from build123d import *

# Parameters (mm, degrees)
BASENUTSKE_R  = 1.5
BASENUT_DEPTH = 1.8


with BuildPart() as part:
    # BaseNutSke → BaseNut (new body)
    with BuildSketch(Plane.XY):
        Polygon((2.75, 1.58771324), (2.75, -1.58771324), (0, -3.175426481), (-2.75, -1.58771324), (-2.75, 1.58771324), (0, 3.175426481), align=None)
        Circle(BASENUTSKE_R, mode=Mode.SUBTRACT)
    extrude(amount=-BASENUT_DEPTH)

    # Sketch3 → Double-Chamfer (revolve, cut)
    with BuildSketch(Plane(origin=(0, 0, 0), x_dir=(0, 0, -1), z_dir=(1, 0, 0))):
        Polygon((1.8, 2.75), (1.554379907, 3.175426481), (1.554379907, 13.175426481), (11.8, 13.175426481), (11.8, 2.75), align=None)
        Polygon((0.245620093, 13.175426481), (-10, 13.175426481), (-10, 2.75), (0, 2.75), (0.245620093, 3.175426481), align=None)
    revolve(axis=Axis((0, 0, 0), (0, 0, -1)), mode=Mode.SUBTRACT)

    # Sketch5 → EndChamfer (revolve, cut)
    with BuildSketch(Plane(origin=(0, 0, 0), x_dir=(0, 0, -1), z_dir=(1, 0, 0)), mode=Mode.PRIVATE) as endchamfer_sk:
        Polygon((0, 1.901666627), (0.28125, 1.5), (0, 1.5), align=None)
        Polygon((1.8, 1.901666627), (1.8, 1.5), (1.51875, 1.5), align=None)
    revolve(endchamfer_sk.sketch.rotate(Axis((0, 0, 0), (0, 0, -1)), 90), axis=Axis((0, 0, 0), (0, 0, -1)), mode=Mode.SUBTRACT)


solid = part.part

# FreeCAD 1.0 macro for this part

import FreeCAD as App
import Part
import Sketcher
Q = App.Units.Quantity

doc = App.newDocument("Part")
body = doc.addObject("PartDesign::Body", "Body")

# Sketch on XY plane
sketch1 = body.newObject("Sketcher::SketchObject", "Sketch")
sketch1.AttachmentSupport = (doc.getObject("XY_Plane"), [""])
sketch1.MapMode = "FlatFace"
sketch1.addGeometry(Part.LineSegment(App.Vector(2.75, -1.587713, 0), App.Vector(2.75, 1.587713, 0)), False)
sketch1.addGeometry(Part.LineSegment(App.Vector(2.75, 1.587713, 0), App.Vector(0, 3.175426, 0)), False)
sketch1.addGeometry(Part.LineSegment(App.Vector(0, 3.175426, 0), App.Vector(-2.75, 1.587713, 0)), False)
sketch1.addGeometry(Part.LineSegment(App.Vector(-2.75, 1.587713, 0), App.Vector(-2.75, -1.587713, 0)), False)
sketch1.addGeometry(Part.LineSegment(App.Vector(-2.75, -1.587713, 0), App.Vector(0, -3.175426, 0)), False)
sketch1.addGeometry(Part.LineSegment(App.Vector(0, -3.175426, 0), App.Vector(2.75, -1.587713, 0)), False)
sketch1.addGeometry(Part.Circle(App.Vector(0, 0, 0), App.Vector(0, 0, 1), 1.5), False)
sketch1.addConstraint(Sketcher.Constraint("Coincident", 0, 2, 1, 1))
sketch1.addConstraint(Sketcher.Constraint("Coincident", 1, 2, 2, 1))
sketch1.addConstraint(Sketcher.Constraint("Coincident", 2, 2, 3, 1))
sketch1.addConstraint(Sketcher.Constraint("Coincident", 3, 2, 4, 1))
sketch1.addConstraint(Sketcher.Constraint("Coincident", 4, 2, 5, 1))
sketch1.addConstraint(Sketcher.Constraint("Coincident", 5, 2, 0, 1))
sketch1.addConstraint(Sketcher.Constraint("Vertical", 0))
sketch1.addConstraint(Sketcher.Constraint("Vertical", 3))
sketch1.addConstraint(Sketcher.Constraint("Coincident", 6, 3, -1, 1))
sketch1.addConstraint(Sketcher.Constraint("Symmetric", 0, 2, 3, 2, -1, 1))
sketch1.addConstraint(Sketcher.Constraint("Symmetric", 1, 2, 4, 2, -1, 1))
sketch1.addConstraint(Sketcher.Constraint("PointOnObject", 1, 2, -2))
sketch1.addConstraint(Sketcher.Constraint("Parallel", 2, 5))
sketch1.addConstraint(Sketcher.Constraint("Horizontal", 0, 2, 2, 2))
sketch1.addConstraint(Sketcher.Constraint("Diameter", 6, 3.0))
sketch1.addConstraint(Sketcher.Constraint("Angle", 1, Q("150 deg")))
sketch1.addConstraint(Sketcher.Constraint("DistanceX", 2, 2, 0, 2, 5.5))
sketch1.addConstraint(Sketcher.Constraint("DistanceY", 0, 1, 0, 2, 3.175426))
pad1 = body.newObject("PartDesign::Pad", "Pad")
pad1.Profile = sketch1
pad1.Length = 1.8
pad1.Reversed = True

# Sketch on YZ plane
sketch2 = body.newObject("Sketcher::SketchObject", "Sketch001")
sketch2.AttachmentSupport = (doc.getObject("YZ_Plane"), [""])
sketch2.MapMode = "FlatFace"
sketch2.addGeometry(Part.LineSegment(App.Vector(3.175426, -1.55438, 0), App.Vector(2.75, -1.8, 0)), False)
sketch2.addGeometry(Part.LineSegment(App.Vector(2.75, -1.8, 0), App.Vector(2.75, -11.8, 0)), False)
sketch2.addGeometry(Part.LineSegment(App.Vector(2.75, -11.8, 0), App.Vector(13.175426, -11.8, 0)), False)
sketch2.addGeometry(Part.LineSegment(App.Vector(13.175426, -11.8, 0), App.Vector(13.175426, -1.55438, 0)), False)
sketch2.addGeometry(Part.LineSegment(App.Vector(13.175426, -1.55438, 0), App.Vector(3.175426, -1.55438, 0)), False)
sketch2.addGeometry(Part.LineSegment(App.Vector(13.175426, -0.24562, 0), App.Vector(13.175426, 10, 0)), False)
sketch2.addGeometry(Part.LineSegment(App.Vector(13.175426, 10, 0), App.Vector(2.75, 10, 0)), False)
sketch2.addGeometry(Part.LineSegment(App.Vector(2.75, 10, 0), App.Vector(2.75, 0, 0)), False)
sketch2.addGeometry(Part.LineSegment(App.Vector(2.75, 0, 0), App.Vector(3.175426, -0.24562, 0)), False)
sketch2.addGeometry(Part.LineSegment(App.Vector(3.175426, -0.24562, 0), App.Vector(13.175426, -0.24562, 0)), False)
sketch2.addConstraint(Sketcher.Constraint("Coincident", 0, 2, 1, 1))
sketch2.addConstraint(Sketcher.Constraint("Coincident", 1, 2, 2, 1))
sketch2.addConstraint(Sketcher.Constraint("Coincident", 2, 2, 3, 1))
sketch2.addConstraint(Sketcher.Constraint("Coincident", 3, 2, 4, 1))
sketch2.addConstraint(Sketcher.Constraint("Coincident", 4, 2, 0, 1))
sketch2.addConstraint(Sketcher.Constraint("Coincident", 5, 2, 6, 1))
sketch2.addConstraint(Sketcher.Constraint("Coincident", 6, 2, 7, 1))
sketch2.addConstraint(Sketcher.Constraint("Coincident", 7, 2, 8, 1))
sketch2.addConstraint(Sketcher.Constraint("Coincident", 8, 2, 9, 1))
sketch2.addConstraint(Sketcher.Constraint("Coincident", 9, 2, 5, 1))
sketch2.addConstraint(Sketcher.Constraint("Vertical", 1))
sketch2.addConstraint(Sketcher.Constraint("Horizontal", 2))
sketch2.addConstraint(Sketcher.Constraint("Vertical", 3))
sketch2.addConstraint(Sketcher.Constraint("Horizontal", 4))
sketch2.addConstraint(Sketcher.Constraint("Vertical", 5))
sketch2.addConstraint(Sketcher.Constraint("Horizontal", 6))
sketch2.addConstraint(Sketcher.Constraint("Vertical", 7))
sketch2.addConstraint(Sketcher.Constraint("Horizontal", 9))
sketch2.addConstraint(Sketcher.Constraint("PointOnObject", 7, 2, -1))
sketch2.addConstraint(Sketcher.Constraint("Vertical", 3, 2, 5, 2))
sketch2.addConstraint(Sketcher.Constraint("Vertical", 1, 2, 6, 2))
sketch2.addConstraint(Sketcher.Constraint("Vertical", 4, 2, 8, 2))
sketch2.addConstraint(Sketcher.Constraint("Equal", 9, 1))
sketch2.addConstraint(Sketcher.Constraint("Equal", 3, 5))
sketch2.addConstraint(Sketcher.Constraint("Equal", 1, 7))
sketch2.addConstraint(Sketcher.Constraint("DistanceX", 4, 2, 4, 1, 10.0))
sketch2.addConstraint(Sketcher.Constraint("Angle", 0, Q("-150 deg")))
sketch2.addConstraint(Sketcher.Constraint("DistanceY", 0, 2, -1, 1, 1.8))
sketch2.addConstraint(Sketcher.Constraint("DistanceX", -1, 1, 0, 2, 2.75))
sketch2.addConstraint(Sketcher.Constraint("DistanceY", 3, 1, 3, 2, 10.24562))
groove = body.newObject("PartDesign::Groove", "Groove")
groove.Profile = sketch2
groove.ReferenceAxis = (sketch2, ["V_Axis"])
groove.Angle = 360

# Sketch on YZ plane
sketch3 = body.newObject("Sketcher::SketchObject", "Sketch002")
sketch3.AttachmentSupport = (doc.getObject("YZ_Plane"), [""])
sketch3.MapMode = "FlatFace"
sketch3.addGeometry(Part.LineSegment(App.Vector(1.5, -0.28125, 0), App.Vector(1.901667, 0, 0)), False)
sketch3.addGeometry(Part.LineSegment(App.Vector(1.901667, 0, 0), App.Vector(1.5, 0, 0)), False)
sketch3.addGeometry(Part.LineSegment(App.Vector(1.5, 0, 0), App.Vector(1.5, -0.28125, 0)), False)
sketch3.addGeometry(Part.LineSegment(App.Vector(1.5, -1.8, 0), App.Vector(1.901667, -1.8, 0)), False)
sketch3.addGeometry(Part.LineSegment(App.Vector(1.901667, -1.8, 0), App.Vector(1.5, -1.51875, 0)), False)
sketch3.addGeometry(Part.LineSegment(App.Vector(1.5, -1.51875, 0), App.Vector(1.5, -1.8, 0)), False)
sketch3.addConstraint(Sketcher.Constraint("Coincident", 0, 2, 1, 1))
sketch3.addConstraint(Sketcher.Constraint("Coincident", 1, 2, 2, 1))
sketch3.addConstraint(Sketcher.Constraint("Coincident", 2, 2, 0, 1))
sketch3.addConstraint(Sketcher.Constraint("Coincident", 3, 2, 4, 1))
sketch3.addConstraint(Sketcher.Constraint("Coincident", 4, 2, 5, 1))
sketch3.addConstraint(Sketcher.Constraint("Coincident", 5, 2, 3, 1))
sketch3.addConstraint(Sketcher.Constraint("Horizontal", 1))
sketch3.addConstraint(Sketcher.Constraint("Vertical", 2))
sketch3.addConstraint(Sketcher.Constraint("Horizontal", 3))
sketch3.addConstraint(Sketcher.Constraint("Vertical", 5))
sketch3.addConstraint(Sketcher.Constraint("PointOnObject", 0, 2, -1))
sketch3.addConstraint(Sketcher.Constraint("Vertical", 0, 2, 3, 2))
sketch3.addConstraint(Sketcher.Constraint("Vertical", 2, 2, 4, 2))
sketch3.addConstraint(Sketcher.Constraint("Equal", 2, 5))
sketch3.addConstraint(Sketcher.Constraint("Angle", 0, Q("35 deg")))
sketch3.addConstraint(Sketcher.Constraint("DistanceX", -1, 1, 1, 2, 1.5))
sketch3.addConstraint(Sketcher.Constraint("DistanceY", 3, 2, -1, 1, 1.8))
sketch3.addConstraint(Sketcher.Constraint("DistanceY", 2, 2, 2, 1, 0.28125))
groove2 = body.newObject("PartDesign::Groove", "Groove001")
groove2.Profile = sketch3
groove2.ReferenceAxis = (sketch3, ["V_Axis"])
groove2.Angle = 360

doc.recompute()
